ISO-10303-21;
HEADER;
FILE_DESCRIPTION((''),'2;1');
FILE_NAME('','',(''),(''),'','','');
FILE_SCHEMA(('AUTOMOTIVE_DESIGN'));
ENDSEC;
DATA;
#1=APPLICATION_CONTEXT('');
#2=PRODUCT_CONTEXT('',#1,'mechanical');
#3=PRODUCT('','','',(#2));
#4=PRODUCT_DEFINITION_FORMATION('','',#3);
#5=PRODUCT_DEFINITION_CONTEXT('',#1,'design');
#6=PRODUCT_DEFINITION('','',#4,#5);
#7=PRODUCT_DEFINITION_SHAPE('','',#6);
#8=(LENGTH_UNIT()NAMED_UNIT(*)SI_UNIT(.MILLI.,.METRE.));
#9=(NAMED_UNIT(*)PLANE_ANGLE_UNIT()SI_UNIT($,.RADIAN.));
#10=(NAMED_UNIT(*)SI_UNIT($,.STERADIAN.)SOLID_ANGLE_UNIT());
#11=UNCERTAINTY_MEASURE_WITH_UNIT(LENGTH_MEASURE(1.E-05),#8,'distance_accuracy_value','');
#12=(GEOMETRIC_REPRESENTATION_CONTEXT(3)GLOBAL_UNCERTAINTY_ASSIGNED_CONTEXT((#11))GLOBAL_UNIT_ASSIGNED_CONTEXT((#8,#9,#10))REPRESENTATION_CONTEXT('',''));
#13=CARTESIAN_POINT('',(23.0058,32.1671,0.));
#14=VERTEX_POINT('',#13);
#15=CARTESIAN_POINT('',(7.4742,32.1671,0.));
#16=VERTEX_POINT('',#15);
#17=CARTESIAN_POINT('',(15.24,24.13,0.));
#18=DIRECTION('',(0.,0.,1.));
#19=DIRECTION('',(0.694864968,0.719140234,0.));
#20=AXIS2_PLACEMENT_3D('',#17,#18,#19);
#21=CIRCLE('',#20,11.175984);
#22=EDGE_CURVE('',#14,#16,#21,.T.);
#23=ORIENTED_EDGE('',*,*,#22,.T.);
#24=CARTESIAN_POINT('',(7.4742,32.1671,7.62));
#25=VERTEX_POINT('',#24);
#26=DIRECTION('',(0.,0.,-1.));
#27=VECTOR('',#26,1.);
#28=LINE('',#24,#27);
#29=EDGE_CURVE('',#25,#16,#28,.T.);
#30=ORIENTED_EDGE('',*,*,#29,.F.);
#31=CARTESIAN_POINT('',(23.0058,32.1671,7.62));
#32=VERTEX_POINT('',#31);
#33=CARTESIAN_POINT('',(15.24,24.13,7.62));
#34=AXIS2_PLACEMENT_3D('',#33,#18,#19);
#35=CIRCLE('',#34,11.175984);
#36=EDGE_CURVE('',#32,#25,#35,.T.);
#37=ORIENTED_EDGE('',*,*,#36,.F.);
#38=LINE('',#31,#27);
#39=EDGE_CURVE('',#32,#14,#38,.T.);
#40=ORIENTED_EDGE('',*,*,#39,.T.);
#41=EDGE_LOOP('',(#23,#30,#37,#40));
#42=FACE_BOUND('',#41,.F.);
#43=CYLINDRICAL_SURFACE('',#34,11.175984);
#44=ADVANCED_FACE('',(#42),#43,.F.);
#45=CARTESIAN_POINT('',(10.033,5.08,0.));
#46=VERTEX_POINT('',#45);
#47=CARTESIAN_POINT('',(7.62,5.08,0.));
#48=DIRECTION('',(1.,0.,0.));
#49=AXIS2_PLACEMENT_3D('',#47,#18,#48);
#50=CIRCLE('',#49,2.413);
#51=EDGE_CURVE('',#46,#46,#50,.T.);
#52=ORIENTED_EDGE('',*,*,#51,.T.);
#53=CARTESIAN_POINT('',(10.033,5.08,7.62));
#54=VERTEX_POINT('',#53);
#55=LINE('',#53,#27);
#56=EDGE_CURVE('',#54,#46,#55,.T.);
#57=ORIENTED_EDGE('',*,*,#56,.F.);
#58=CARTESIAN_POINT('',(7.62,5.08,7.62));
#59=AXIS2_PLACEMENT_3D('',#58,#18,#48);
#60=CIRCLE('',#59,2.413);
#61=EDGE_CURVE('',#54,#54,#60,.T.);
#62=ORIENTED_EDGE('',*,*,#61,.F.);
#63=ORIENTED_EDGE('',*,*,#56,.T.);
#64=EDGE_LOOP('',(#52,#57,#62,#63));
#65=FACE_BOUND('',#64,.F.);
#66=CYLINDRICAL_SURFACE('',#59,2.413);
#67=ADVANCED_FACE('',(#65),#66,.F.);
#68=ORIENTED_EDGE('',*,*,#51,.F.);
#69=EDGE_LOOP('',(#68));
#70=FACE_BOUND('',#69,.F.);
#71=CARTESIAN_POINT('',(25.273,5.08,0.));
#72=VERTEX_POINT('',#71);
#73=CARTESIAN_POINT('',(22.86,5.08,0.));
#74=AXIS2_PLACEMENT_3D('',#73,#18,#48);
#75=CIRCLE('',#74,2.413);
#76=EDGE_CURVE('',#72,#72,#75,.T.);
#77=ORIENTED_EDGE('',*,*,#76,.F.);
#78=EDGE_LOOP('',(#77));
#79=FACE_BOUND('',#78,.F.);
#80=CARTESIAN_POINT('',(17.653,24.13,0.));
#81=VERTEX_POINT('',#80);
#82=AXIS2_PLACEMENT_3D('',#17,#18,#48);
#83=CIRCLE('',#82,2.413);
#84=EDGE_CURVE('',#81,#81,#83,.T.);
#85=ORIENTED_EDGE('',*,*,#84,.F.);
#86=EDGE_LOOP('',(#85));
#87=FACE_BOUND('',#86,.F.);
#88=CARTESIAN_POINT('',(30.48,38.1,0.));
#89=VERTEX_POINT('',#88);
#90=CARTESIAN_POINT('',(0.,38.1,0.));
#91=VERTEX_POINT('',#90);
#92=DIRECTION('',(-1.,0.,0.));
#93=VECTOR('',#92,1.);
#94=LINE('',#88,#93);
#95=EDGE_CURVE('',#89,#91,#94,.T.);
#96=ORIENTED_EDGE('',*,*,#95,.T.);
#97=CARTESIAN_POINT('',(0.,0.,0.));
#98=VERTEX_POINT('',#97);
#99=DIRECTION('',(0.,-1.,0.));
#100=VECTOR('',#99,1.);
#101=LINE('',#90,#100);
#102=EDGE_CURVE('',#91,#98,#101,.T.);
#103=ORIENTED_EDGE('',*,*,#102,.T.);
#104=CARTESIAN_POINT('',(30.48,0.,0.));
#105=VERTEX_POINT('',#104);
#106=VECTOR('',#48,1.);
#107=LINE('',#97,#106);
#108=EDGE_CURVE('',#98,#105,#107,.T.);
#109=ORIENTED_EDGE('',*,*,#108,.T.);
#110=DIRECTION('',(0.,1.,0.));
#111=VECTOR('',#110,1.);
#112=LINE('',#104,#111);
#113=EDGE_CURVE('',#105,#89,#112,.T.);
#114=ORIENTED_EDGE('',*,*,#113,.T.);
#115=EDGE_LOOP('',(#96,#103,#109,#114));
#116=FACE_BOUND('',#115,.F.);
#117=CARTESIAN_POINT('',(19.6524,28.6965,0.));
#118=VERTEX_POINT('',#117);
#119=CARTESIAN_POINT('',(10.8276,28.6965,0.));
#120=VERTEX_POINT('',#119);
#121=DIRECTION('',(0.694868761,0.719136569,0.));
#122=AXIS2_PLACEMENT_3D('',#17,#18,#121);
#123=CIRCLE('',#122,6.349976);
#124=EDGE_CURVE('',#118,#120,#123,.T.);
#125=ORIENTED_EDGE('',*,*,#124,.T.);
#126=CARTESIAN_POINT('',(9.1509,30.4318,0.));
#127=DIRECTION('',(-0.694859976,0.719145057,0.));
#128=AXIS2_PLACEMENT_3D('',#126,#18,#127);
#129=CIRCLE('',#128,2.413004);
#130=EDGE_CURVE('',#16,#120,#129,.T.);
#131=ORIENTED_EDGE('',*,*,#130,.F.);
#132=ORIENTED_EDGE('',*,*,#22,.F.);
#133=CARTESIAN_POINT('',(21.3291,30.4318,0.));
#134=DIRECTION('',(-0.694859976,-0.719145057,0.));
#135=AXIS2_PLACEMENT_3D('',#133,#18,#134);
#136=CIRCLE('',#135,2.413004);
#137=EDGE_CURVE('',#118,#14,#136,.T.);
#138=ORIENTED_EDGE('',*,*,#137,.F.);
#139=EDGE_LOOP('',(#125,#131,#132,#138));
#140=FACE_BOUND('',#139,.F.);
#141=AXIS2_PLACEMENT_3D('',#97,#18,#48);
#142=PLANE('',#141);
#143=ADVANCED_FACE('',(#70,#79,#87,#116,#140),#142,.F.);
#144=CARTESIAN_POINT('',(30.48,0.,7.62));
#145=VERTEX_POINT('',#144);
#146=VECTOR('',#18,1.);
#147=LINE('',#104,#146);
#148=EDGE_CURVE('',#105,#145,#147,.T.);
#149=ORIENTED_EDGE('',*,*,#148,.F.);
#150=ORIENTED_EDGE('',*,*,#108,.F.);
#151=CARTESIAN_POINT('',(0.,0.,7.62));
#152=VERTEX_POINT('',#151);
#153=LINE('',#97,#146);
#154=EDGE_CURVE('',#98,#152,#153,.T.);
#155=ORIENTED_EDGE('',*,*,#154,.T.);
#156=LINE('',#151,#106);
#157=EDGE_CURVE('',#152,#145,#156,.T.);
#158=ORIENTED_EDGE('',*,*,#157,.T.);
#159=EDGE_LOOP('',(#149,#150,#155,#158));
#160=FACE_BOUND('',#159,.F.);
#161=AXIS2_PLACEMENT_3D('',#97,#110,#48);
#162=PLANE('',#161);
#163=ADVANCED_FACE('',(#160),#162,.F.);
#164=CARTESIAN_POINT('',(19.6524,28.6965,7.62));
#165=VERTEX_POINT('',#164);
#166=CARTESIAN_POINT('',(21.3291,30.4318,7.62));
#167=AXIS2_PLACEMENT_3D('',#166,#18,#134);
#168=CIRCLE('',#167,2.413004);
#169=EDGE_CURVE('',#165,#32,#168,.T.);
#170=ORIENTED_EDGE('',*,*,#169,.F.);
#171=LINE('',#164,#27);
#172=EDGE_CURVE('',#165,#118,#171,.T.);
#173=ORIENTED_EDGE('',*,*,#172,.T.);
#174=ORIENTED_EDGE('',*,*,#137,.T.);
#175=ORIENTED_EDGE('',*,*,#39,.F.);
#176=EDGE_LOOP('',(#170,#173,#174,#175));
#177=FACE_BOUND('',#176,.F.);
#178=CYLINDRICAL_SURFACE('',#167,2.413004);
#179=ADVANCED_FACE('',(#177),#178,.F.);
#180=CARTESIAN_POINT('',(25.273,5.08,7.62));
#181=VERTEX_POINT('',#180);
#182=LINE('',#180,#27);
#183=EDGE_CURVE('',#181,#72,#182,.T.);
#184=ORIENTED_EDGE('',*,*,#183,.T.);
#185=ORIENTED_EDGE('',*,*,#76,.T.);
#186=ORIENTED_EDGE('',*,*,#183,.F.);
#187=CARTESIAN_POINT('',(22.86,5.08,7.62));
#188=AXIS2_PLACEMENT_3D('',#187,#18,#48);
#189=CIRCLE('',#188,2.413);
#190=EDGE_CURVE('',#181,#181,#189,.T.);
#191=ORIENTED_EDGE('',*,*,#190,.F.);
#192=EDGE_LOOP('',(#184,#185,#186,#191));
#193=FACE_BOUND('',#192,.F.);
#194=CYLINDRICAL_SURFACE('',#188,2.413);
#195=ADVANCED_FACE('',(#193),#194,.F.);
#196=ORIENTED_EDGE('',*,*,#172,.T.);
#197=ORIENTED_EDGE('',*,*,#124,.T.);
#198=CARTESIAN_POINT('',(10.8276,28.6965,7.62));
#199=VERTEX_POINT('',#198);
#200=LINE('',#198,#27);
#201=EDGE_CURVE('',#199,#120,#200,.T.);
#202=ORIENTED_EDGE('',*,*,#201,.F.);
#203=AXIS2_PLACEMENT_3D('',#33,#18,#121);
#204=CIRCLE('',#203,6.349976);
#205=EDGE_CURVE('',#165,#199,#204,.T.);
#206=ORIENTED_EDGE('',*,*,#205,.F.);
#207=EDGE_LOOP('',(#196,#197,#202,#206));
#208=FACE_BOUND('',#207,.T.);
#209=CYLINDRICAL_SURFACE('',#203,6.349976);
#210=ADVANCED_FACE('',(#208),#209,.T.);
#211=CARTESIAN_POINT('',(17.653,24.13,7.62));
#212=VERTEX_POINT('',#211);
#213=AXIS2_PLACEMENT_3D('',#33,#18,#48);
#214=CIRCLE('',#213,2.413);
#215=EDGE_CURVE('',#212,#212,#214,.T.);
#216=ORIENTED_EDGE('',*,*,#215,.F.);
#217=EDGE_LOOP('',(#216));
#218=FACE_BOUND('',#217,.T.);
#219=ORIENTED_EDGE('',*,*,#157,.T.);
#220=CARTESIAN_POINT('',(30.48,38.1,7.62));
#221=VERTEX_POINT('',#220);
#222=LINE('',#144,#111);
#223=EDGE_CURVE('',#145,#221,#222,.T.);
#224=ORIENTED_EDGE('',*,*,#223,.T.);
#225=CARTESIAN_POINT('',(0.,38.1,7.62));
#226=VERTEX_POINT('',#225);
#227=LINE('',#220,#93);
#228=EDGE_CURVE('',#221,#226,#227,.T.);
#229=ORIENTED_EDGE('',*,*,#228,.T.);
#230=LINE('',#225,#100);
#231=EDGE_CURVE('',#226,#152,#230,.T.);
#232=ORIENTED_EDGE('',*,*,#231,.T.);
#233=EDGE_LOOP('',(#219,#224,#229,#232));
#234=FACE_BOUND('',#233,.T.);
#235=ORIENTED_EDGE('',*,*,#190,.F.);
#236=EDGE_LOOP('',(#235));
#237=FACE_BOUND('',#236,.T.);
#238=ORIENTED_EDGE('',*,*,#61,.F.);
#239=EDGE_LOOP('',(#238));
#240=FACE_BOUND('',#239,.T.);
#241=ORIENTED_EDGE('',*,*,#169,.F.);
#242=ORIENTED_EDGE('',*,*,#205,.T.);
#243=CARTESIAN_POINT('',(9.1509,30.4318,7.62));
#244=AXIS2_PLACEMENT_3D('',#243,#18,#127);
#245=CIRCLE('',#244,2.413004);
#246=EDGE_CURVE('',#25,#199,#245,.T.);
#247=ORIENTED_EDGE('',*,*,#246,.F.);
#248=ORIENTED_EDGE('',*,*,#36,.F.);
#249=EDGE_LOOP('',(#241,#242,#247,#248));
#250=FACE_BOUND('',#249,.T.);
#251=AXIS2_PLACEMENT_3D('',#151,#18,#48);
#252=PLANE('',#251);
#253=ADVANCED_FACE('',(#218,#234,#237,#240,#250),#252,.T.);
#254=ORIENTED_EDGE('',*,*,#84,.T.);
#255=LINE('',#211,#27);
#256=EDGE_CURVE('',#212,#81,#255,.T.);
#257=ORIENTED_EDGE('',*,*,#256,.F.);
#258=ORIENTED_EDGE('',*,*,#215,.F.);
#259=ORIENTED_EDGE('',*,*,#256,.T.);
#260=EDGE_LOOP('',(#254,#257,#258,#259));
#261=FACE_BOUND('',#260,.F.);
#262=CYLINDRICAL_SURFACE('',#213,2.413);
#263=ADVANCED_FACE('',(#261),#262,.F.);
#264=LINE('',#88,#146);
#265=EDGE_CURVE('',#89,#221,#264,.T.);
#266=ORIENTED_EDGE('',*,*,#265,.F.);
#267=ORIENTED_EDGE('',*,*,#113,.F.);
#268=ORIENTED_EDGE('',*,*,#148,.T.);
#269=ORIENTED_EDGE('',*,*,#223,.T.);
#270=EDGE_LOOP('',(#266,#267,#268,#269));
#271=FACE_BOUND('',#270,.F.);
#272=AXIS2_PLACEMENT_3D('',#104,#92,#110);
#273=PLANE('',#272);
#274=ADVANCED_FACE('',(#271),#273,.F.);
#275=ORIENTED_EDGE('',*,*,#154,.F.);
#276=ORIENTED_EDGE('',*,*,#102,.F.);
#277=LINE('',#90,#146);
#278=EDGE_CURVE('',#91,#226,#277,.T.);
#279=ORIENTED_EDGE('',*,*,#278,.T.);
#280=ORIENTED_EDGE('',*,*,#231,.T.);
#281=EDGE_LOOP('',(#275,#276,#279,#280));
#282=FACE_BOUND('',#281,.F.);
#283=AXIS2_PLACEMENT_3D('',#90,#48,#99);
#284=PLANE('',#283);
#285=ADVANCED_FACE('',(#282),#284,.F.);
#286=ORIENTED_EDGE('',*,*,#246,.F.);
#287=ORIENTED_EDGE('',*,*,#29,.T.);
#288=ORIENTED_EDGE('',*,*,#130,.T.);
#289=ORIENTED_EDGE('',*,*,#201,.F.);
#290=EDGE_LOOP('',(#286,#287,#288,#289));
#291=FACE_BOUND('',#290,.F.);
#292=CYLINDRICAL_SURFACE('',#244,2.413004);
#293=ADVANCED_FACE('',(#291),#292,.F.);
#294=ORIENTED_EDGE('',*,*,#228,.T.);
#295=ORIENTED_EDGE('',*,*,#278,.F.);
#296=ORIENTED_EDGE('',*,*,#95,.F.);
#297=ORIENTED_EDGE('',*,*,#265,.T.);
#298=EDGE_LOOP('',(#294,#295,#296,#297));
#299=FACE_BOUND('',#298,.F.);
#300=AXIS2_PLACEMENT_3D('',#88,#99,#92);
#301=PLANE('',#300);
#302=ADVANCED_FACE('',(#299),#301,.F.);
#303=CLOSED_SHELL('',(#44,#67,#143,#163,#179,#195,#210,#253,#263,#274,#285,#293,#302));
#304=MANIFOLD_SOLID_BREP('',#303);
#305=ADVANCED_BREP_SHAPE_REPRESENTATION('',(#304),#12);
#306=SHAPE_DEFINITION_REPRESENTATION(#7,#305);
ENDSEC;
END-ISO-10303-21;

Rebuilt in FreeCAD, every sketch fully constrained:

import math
import FreeCAD as App
import Part
import Sketcher
from FreeCAD import Vector
Q = App.Units.Quantity


def add_polygon(sketch, points):
    """Adds a closed chain of lines whose ends are joined by coincident constraints."""
    first, n = sketch.GeometryCount, len(points)
    for a, b in zip(points, points[1:] + points[:1]):
        sketch.addGeometry(Part.LineSegment(App.Vector(*a, 0), App.Vector(*b, 0)), False)
    for i in range(n):
        sketch.addConstraint(Sketcher.Constraint("Coincident", first + i, 2, first + (i + 1) % n, 1))

doc = App.newDocument("Part")
body = doc.addObject("PartDesign::Body", "Body")

# Sketch on XY plane
sketch1 = body.newObject("Sketcher::SketchObject", "Sketch")
sketch1.AttachmentSupport = (doc.getObject("XY_Plane"), [""])
sketch1.MapMode = "FlatFace"
add_polygon(sketch1, [(0, 38), (0, 0), (30, 0), (30, 38)])  # lines 0-3
sketch1.addConstraint([
    Sketcher.Constraint("Vertical", 0),
    Sketcher.Constraint("Horizontal", 1),
    Sketcher.Constraint("Vertical", 2),
    Sketcher.Constraint("Horizontal", 3),
    Sketcher.Constraint("Coincident", 0, 2, -1, 1),
    Sketcher.Constraint("DistanceX", 1, 1, 1, 2, Q("1.2 in")),
    Sketcher.Constraint("DistanceY", 0, 2, 0, 1, Q("1.5 in")),
])
pad1 = body.newObject("PartDesign::Pad", "Pad")
pad1.Profile = sketch1
pad1.Length = Q("0.3 in")

# Sketch on XY plane
sketch2 = body.newObject("Sketcher::SketchObject", "Sketch001")
sketch2.AttachmentSupport = (doc.getObject("XY_Plane"), [""])
sketch2.MapMode = "FlatFace"
sketch2.AttachmentOffset = App.Placement(Vector(0, 0, 0.3 * 25.4), App.Rotation())
sketch2.addGeometry([
    Part.Circle(Vector(7.6, 5.1, 0), Vector(0, 0, 1), 2.4),
    Part.Circle(Vector(22.9, 5.1, 0), Vector(0, 0, 1), 2.4),
], False)
sketch2.addConstraint([
    Sketcher.Constraint("Equal", 0, 1),
    Sketcher.Constraint("Horizontal", 0, 3, 1, 3),
    Sketcher.Constraint("Diameter", 0, Q("0.19 in")),
    Sketcher.Constraint("DistanceX", -1, 1, 0, 3, Q("0.3 in")),
    Sketcher.Constraint("DistanceY", -1, 1, 0, 3, Q("0.2 in")),
    Sketcher.Constraint("DistanceX", -1, 1, 1, 3, Q("0.9 in")),
])
pocket1 = body.newObject("PartDesign::Pocket", "Pocket")
pocket1.Profile = sketch2
pocket1.Length = Q("0.3 in")

# Sketch on XY plane
sketch3 = body.newObject("Sketcher::SketchObject", "Sketch002")
sketch3.AttachmentSupport = (doc.getObject("XY_Plane"), [""])
sketch3.MapMode = "FlatFace"
sketch3.AttachmentOffset = App.Placement(Vector(0, 0, 0.3 * 25.4), App.Rotation())
sketch3.addGeometry(Part.Circle(Vector(15.2, 24.1, 0), Vector(0, 0, 1), 2.4), False)
sketch3.addConstraint([
    Sketcher.Constraint("Diameter", 0, Q("0.19 in")),
    Sketcher.Constraint("DistanceX", -1, 1, 0, 3, Q("0.6 in")),
    Sketcher.Constraint("DistanceY", -1, 1, 0, 3, Q("0.95 in")),
])
pocket2 = body.newObject("PartDesign::Pocket", "Pocket001")
pocket2.Profile = sketch3
pocket2.Length = Q("0.3 in")

# Sketch on XY plane
sketch4 = body.newObject("Sketcher::SketchObject", "Sketch003")
sketch4.AttachmentSupport = (doc.getObject("XY_Plane"), [""])
sketch4.MapMode = "FlatFace"
sketch4.AttachmentOffset = App.Placement(Vector(0, 0, 0.3 * 25.4), App.Rotation())
sketch4.addGeometry([
    Part.ArcOfCircle(Part.Circle(Vector(15.2, 24.1, 0), Vector(0, 0, 1), 11.2), math.radians(46), math.radians(134)),
    Part.ArcOfCircle(Part.Circle(Vector(9.2, 30.4, 0), Vector(0, 0, 1), 2.4), math.radians(134), math.radians(314)),
    Part.ArcOfCircle(Part.Circle(Vector(15.2, 24.1, 0), Vector(0, 0, 1), 6.3), math.radians(46), math.radians(134)),
    Part.ArcOfCircle(Part.Circle(Vector(21.3, 30.4, 0), Vector(0, 0, 1), 2.4), math.radians(-134), math.radians(46)),
], False)
sketch4.addConstraint([
    Sketcher.Constraint("Tangent", 0, 2, 1, 1),
    Sketcher.Constraint("Tangent", 1, 2, 2, 2),
    Sketcher.Constraint("Tangent", 2, 1, 3, 1),
    Sketcher.Constraint("Tangent", 3, 2, 0, 1),
    Sketcher.Constraint("Coincident", 2, 3, 0, 3),
    Sketcher.Constraint("Horizontal", 1, 3, 3, 3),
    Sketcher.Constraint("Radius", 0, Q("0.44 in")),
    Sketcher.Constraint("Radius", 2, Q("0.25 in")),
    Sketcher.Constraint("DistanceX", -1, 1, 0, 3, Q("0.6 in")),
    Sketcher.Constraint("DistanceY", -1, 1, 0, 3, Q("0.95 in")),
    Sketcher.Constraint("DistanceX", 0, 2, 1, 3, Q("0.066 in")),
])
pocket3 = body.newObject("PartDesign::Pocket", "Pocket002")
pocket3.Profile = sketch4
pocket3.Type = "ThroughAll"

doc.recompute()
